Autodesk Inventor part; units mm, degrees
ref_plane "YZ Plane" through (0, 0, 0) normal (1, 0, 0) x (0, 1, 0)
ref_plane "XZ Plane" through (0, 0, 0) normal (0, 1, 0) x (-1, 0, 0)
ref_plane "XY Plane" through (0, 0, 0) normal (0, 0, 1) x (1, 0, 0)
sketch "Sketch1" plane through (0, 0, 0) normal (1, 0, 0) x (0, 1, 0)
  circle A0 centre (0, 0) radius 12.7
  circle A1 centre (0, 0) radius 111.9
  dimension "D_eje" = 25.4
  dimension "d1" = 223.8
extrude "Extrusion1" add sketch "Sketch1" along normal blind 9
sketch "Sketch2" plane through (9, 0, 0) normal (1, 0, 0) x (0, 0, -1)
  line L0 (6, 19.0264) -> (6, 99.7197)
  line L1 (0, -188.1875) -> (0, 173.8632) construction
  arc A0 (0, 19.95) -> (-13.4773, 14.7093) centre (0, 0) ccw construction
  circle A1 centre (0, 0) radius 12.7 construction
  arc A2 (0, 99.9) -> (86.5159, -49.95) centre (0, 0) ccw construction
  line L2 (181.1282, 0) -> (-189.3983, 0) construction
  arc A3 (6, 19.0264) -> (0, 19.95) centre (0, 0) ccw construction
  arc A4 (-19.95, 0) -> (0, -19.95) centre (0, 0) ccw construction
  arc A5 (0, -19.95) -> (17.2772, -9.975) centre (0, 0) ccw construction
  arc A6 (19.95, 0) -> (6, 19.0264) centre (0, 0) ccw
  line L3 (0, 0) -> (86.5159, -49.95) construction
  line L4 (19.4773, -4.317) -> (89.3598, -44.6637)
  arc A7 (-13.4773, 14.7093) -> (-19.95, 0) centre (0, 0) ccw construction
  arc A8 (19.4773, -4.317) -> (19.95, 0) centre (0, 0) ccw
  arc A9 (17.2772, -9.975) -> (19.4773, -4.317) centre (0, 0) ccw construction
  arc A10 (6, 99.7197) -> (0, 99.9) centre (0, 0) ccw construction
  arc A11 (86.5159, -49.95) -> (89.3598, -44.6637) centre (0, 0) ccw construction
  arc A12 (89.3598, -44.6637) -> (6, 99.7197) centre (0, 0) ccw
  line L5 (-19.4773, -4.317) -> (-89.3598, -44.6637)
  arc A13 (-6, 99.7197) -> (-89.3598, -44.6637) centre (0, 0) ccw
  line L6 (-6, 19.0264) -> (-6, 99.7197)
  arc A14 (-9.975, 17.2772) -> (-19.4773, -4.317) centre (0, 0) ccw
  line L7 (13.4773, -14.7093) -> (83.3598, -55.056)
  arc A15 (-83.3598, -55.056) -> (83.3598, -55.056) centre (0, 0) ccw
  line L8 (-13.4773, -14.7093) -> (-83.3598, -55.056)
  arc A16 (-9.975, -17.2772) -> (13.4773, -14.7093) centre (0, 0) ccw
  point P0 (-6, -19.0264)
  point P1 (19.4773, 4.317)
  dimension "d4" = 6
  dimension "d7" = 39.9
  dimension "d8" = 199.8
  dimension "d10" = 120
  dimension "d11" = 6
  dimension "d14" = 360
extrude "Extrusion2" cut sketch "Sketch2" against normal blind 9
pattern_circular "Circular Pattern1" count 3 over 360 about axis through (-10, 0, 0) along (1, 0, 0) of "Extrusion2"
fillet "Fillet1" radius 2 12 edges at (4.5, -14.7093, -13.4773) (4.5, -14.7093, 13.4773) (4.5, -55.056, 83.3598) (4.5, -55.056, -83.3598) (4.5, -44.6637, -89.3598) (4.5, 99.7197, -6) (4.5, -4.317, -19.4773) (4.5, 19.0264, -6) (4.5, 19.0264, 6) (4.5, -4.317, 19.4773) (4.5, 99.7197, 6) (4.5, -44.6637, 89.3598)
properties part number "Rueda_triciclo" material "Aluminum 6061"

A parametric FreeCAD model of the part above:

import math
import FreeCAD as App
import Part
import Sketcher

V = App.Vector
Q = App.Units.Quantity


def edges_at(feature, points):
    """Names of the edges that pass closest to the given points."""
    edges = feature.Shape.Edges
    near = lambda p: min(range(len(edges)), key=lambda i: edges[i].distToShape(Part.Vertex(*p))[0])
    return sorted({f"Edge{near(p) + 1}" for p in points})

doc = App.newDocument("Part")
params = doc.addObject("Spreadsheet::Sheet", "Params")
for row, (alias, value) in enumerate([
    ("sketch1_diameter", "223.8 mm"),
    ("sketch1_diameter2", "25.4 mm"),
    ("pad1_length", "9 mm"),
    ("sketch2_radius", "99.9 mm"),
    ("sketch2_radius2", "19.95 mm"),
    ("pocket1_length", "9 mm"),
    ("fillet_radius", "2 mm"),
], start=1):
    params.set(f"A{row}", alias)
    params.set(f"B{row}", "=" + value)
    params.setAlias(f"B{row}", alias)

body = doc.addObject("PartDesign::Body", "Body")

# Sketch on YZ plane
sketch1 = body.newObject("Sketcher::SketchObject", "Sketch")
sketch1.AttachmentSupport = (doc.getObject("YZ_Plane"), [""])
sketch1.MapMode = "FlatFace"
sketch1.addGeometry(Part.Circle(V(0, 0, 0), V(0, 0, 1), 111.9), False)
sketch1.addGeometry(Part.Circle(V(0, 0, 0), V(0, 0, 1), 12.7), False)
sketch1.addConstraint(Sketcher.Constraint("Coincident", 0, 3, -1, 1))
sketch1.addConstraint(Sketcher.Constraint("Coincident", 1, 3, -1, 1))
sketch1.addConstraint(Sketcher.Constraint("Diameter", 0, 223.8))
sketch1.addConstraint(Sketcher.Constraint("Diameter", 1, 25.4))
sketch1.setExpression("Constraints[2]", "Params.sketch1_diameter")
sketch1.setExpression("Constraints[3]", "Params.sketch1_diameter2")
pad1 = body.newObject("PartDesign::Pad", "Pad")
pad1.Profile = sketch1
pad1.setExpression("Length", "Params.pad1_length")

# Sketch on YZ plane
sketch2 = body.newObject("Sketcher::SketchObject", "Sketch001")
sketch2.AttachmentSupport = (doc.getObject("YZ_Plane"), [""])
sketch2.MapMode = "FlatFace"
sketch2.AttachmentOffset = App.Placement(V(0, 0, 9), App.Rotation())
sketch2.addGeometry(Part.LineSegment(V(99.7197, -6, 0), V(19.0264, -6, 0)), False)
sketch2.addGeometry(Part.ArcOfCircle(Part.Circle(V(0, 0, 0), V(0, 0, 1), 19.950035), math.radians(-90), math.radians(-17.502737)), False)
sketch2.addGeometry(Part.ArcOfCircle(Part.Circle(V(0.000274, 0.001659, 0), V(0, 0, 1), 19.951659), math.radians(-102.496895), math.radians(-90.000786)), False)
sketch2.addGeometry(Part.LineSegment(V(-4.317, -19.4773, 0), V(-44.6637, -89.3598, 0)), False)
sketch2.addGeometry(Part.ArcOfCircle(Part.Circle(V(0, 0, 0), V(0, 0, 1), 99.900043), math.radians(-116.556741), math.radians(-3.443259)), False)
sketch2.addConstraint(Sketcher.Constraint("Coincident", 0, 2, 1, 2))
sketch2.addConstraint(Sketcher.Constraint("Tangent", 1, 1, 2, 2))
sketch2.addConstraint(Sketcher.Constraint("Coincident", 2, 1, 3, 1))
sketch2.addConstraint(Sketcher.Constraint("Coincident", 3, 2, 4, 1))
sketch2.addConstraint(Sketcher.Constraint("Coincident", 4, 2, 0, 1))
sketch2.addConstraint(Sketcher.Constraint("Horizontal", 0))
sketch2.addConstraint(Sketcher.Constraint("Coincident", 1, 3, -1, 1))
sketch2.addConstraint(Sketcher.Constraint("Coincident", 4, 3, -1, 1))
sketch2.addConstraint(Sketcher.Constraint("PointOnObject", 1, 1, -2))
sketch2.addConstraint(Sketcher.Constraint("Radius", 4, 99.9))
sketch2.addConstraint(Sketcher.Constraint("Angle", 3, Q("-120 deg")))
sketch2.addConstraint(Sketcher.Constraint("Radius", 1, 19.95))
sketch2.addConstraint(Sketcher.Constraint("DistanceY", 0, 2, -1, 1, 6.0))
sketch2.addConstraint(Sketcher.Constraint("Radius", 2, 19.9517))
sketch2.addConstraint(Sketcher.Constraint("DistanceX", 2, 1, -1, 1, 4.317))
sketch2.setExpression("Constraints[9]", "Params.sketch2_radius")
sketch2.setExpression("Constraints[11]", "Params.sketch2_radius2")
pocket1 = body.newObject("PartDesign::Pocket", "Pocket")
pocket1.Profile = sketch2
pocket1.setExpression("Length", "Params.pocket1_length")
doc.recompute()

polarpattern = body.newObject("PartDesign::PolarPattern", "PolarPattern")
polarpattern.Originals = [pocket1]
polarpattern.Axis = (doc.getObject("X_Axis"), [""])
polarpattern.Angle = 360
polarpattern.Occurrences = 3
body.Tip = polarpattern
doc.recompute()

fillet = body.newObject("PartDesign::Fillet", "Fillet")
fillet.Base = (polarpattern, edges_at(polarpattern, [
    (4.5, -14.709, -13.477),
    (4.5, -14.709, 13.477),
    (4.5, -55.056, 83.36),
    (4.5, -55.056, -83.36),
    (4.5, -44.664, -89.36),
    (4.5, 99.72, -6),
    (4.5, -4.317, -19.477),
    (4.5, 19.026, -6),
    (4.5, 19.026, 6),
    (4.5, -4.317, 19.477),
    (4.5, 99.72, 6),
    (4.5, -44.664, 89.36),
]))
fillet.setExpression("Radius", "Params.fillet_radius")

doc.recompute()
